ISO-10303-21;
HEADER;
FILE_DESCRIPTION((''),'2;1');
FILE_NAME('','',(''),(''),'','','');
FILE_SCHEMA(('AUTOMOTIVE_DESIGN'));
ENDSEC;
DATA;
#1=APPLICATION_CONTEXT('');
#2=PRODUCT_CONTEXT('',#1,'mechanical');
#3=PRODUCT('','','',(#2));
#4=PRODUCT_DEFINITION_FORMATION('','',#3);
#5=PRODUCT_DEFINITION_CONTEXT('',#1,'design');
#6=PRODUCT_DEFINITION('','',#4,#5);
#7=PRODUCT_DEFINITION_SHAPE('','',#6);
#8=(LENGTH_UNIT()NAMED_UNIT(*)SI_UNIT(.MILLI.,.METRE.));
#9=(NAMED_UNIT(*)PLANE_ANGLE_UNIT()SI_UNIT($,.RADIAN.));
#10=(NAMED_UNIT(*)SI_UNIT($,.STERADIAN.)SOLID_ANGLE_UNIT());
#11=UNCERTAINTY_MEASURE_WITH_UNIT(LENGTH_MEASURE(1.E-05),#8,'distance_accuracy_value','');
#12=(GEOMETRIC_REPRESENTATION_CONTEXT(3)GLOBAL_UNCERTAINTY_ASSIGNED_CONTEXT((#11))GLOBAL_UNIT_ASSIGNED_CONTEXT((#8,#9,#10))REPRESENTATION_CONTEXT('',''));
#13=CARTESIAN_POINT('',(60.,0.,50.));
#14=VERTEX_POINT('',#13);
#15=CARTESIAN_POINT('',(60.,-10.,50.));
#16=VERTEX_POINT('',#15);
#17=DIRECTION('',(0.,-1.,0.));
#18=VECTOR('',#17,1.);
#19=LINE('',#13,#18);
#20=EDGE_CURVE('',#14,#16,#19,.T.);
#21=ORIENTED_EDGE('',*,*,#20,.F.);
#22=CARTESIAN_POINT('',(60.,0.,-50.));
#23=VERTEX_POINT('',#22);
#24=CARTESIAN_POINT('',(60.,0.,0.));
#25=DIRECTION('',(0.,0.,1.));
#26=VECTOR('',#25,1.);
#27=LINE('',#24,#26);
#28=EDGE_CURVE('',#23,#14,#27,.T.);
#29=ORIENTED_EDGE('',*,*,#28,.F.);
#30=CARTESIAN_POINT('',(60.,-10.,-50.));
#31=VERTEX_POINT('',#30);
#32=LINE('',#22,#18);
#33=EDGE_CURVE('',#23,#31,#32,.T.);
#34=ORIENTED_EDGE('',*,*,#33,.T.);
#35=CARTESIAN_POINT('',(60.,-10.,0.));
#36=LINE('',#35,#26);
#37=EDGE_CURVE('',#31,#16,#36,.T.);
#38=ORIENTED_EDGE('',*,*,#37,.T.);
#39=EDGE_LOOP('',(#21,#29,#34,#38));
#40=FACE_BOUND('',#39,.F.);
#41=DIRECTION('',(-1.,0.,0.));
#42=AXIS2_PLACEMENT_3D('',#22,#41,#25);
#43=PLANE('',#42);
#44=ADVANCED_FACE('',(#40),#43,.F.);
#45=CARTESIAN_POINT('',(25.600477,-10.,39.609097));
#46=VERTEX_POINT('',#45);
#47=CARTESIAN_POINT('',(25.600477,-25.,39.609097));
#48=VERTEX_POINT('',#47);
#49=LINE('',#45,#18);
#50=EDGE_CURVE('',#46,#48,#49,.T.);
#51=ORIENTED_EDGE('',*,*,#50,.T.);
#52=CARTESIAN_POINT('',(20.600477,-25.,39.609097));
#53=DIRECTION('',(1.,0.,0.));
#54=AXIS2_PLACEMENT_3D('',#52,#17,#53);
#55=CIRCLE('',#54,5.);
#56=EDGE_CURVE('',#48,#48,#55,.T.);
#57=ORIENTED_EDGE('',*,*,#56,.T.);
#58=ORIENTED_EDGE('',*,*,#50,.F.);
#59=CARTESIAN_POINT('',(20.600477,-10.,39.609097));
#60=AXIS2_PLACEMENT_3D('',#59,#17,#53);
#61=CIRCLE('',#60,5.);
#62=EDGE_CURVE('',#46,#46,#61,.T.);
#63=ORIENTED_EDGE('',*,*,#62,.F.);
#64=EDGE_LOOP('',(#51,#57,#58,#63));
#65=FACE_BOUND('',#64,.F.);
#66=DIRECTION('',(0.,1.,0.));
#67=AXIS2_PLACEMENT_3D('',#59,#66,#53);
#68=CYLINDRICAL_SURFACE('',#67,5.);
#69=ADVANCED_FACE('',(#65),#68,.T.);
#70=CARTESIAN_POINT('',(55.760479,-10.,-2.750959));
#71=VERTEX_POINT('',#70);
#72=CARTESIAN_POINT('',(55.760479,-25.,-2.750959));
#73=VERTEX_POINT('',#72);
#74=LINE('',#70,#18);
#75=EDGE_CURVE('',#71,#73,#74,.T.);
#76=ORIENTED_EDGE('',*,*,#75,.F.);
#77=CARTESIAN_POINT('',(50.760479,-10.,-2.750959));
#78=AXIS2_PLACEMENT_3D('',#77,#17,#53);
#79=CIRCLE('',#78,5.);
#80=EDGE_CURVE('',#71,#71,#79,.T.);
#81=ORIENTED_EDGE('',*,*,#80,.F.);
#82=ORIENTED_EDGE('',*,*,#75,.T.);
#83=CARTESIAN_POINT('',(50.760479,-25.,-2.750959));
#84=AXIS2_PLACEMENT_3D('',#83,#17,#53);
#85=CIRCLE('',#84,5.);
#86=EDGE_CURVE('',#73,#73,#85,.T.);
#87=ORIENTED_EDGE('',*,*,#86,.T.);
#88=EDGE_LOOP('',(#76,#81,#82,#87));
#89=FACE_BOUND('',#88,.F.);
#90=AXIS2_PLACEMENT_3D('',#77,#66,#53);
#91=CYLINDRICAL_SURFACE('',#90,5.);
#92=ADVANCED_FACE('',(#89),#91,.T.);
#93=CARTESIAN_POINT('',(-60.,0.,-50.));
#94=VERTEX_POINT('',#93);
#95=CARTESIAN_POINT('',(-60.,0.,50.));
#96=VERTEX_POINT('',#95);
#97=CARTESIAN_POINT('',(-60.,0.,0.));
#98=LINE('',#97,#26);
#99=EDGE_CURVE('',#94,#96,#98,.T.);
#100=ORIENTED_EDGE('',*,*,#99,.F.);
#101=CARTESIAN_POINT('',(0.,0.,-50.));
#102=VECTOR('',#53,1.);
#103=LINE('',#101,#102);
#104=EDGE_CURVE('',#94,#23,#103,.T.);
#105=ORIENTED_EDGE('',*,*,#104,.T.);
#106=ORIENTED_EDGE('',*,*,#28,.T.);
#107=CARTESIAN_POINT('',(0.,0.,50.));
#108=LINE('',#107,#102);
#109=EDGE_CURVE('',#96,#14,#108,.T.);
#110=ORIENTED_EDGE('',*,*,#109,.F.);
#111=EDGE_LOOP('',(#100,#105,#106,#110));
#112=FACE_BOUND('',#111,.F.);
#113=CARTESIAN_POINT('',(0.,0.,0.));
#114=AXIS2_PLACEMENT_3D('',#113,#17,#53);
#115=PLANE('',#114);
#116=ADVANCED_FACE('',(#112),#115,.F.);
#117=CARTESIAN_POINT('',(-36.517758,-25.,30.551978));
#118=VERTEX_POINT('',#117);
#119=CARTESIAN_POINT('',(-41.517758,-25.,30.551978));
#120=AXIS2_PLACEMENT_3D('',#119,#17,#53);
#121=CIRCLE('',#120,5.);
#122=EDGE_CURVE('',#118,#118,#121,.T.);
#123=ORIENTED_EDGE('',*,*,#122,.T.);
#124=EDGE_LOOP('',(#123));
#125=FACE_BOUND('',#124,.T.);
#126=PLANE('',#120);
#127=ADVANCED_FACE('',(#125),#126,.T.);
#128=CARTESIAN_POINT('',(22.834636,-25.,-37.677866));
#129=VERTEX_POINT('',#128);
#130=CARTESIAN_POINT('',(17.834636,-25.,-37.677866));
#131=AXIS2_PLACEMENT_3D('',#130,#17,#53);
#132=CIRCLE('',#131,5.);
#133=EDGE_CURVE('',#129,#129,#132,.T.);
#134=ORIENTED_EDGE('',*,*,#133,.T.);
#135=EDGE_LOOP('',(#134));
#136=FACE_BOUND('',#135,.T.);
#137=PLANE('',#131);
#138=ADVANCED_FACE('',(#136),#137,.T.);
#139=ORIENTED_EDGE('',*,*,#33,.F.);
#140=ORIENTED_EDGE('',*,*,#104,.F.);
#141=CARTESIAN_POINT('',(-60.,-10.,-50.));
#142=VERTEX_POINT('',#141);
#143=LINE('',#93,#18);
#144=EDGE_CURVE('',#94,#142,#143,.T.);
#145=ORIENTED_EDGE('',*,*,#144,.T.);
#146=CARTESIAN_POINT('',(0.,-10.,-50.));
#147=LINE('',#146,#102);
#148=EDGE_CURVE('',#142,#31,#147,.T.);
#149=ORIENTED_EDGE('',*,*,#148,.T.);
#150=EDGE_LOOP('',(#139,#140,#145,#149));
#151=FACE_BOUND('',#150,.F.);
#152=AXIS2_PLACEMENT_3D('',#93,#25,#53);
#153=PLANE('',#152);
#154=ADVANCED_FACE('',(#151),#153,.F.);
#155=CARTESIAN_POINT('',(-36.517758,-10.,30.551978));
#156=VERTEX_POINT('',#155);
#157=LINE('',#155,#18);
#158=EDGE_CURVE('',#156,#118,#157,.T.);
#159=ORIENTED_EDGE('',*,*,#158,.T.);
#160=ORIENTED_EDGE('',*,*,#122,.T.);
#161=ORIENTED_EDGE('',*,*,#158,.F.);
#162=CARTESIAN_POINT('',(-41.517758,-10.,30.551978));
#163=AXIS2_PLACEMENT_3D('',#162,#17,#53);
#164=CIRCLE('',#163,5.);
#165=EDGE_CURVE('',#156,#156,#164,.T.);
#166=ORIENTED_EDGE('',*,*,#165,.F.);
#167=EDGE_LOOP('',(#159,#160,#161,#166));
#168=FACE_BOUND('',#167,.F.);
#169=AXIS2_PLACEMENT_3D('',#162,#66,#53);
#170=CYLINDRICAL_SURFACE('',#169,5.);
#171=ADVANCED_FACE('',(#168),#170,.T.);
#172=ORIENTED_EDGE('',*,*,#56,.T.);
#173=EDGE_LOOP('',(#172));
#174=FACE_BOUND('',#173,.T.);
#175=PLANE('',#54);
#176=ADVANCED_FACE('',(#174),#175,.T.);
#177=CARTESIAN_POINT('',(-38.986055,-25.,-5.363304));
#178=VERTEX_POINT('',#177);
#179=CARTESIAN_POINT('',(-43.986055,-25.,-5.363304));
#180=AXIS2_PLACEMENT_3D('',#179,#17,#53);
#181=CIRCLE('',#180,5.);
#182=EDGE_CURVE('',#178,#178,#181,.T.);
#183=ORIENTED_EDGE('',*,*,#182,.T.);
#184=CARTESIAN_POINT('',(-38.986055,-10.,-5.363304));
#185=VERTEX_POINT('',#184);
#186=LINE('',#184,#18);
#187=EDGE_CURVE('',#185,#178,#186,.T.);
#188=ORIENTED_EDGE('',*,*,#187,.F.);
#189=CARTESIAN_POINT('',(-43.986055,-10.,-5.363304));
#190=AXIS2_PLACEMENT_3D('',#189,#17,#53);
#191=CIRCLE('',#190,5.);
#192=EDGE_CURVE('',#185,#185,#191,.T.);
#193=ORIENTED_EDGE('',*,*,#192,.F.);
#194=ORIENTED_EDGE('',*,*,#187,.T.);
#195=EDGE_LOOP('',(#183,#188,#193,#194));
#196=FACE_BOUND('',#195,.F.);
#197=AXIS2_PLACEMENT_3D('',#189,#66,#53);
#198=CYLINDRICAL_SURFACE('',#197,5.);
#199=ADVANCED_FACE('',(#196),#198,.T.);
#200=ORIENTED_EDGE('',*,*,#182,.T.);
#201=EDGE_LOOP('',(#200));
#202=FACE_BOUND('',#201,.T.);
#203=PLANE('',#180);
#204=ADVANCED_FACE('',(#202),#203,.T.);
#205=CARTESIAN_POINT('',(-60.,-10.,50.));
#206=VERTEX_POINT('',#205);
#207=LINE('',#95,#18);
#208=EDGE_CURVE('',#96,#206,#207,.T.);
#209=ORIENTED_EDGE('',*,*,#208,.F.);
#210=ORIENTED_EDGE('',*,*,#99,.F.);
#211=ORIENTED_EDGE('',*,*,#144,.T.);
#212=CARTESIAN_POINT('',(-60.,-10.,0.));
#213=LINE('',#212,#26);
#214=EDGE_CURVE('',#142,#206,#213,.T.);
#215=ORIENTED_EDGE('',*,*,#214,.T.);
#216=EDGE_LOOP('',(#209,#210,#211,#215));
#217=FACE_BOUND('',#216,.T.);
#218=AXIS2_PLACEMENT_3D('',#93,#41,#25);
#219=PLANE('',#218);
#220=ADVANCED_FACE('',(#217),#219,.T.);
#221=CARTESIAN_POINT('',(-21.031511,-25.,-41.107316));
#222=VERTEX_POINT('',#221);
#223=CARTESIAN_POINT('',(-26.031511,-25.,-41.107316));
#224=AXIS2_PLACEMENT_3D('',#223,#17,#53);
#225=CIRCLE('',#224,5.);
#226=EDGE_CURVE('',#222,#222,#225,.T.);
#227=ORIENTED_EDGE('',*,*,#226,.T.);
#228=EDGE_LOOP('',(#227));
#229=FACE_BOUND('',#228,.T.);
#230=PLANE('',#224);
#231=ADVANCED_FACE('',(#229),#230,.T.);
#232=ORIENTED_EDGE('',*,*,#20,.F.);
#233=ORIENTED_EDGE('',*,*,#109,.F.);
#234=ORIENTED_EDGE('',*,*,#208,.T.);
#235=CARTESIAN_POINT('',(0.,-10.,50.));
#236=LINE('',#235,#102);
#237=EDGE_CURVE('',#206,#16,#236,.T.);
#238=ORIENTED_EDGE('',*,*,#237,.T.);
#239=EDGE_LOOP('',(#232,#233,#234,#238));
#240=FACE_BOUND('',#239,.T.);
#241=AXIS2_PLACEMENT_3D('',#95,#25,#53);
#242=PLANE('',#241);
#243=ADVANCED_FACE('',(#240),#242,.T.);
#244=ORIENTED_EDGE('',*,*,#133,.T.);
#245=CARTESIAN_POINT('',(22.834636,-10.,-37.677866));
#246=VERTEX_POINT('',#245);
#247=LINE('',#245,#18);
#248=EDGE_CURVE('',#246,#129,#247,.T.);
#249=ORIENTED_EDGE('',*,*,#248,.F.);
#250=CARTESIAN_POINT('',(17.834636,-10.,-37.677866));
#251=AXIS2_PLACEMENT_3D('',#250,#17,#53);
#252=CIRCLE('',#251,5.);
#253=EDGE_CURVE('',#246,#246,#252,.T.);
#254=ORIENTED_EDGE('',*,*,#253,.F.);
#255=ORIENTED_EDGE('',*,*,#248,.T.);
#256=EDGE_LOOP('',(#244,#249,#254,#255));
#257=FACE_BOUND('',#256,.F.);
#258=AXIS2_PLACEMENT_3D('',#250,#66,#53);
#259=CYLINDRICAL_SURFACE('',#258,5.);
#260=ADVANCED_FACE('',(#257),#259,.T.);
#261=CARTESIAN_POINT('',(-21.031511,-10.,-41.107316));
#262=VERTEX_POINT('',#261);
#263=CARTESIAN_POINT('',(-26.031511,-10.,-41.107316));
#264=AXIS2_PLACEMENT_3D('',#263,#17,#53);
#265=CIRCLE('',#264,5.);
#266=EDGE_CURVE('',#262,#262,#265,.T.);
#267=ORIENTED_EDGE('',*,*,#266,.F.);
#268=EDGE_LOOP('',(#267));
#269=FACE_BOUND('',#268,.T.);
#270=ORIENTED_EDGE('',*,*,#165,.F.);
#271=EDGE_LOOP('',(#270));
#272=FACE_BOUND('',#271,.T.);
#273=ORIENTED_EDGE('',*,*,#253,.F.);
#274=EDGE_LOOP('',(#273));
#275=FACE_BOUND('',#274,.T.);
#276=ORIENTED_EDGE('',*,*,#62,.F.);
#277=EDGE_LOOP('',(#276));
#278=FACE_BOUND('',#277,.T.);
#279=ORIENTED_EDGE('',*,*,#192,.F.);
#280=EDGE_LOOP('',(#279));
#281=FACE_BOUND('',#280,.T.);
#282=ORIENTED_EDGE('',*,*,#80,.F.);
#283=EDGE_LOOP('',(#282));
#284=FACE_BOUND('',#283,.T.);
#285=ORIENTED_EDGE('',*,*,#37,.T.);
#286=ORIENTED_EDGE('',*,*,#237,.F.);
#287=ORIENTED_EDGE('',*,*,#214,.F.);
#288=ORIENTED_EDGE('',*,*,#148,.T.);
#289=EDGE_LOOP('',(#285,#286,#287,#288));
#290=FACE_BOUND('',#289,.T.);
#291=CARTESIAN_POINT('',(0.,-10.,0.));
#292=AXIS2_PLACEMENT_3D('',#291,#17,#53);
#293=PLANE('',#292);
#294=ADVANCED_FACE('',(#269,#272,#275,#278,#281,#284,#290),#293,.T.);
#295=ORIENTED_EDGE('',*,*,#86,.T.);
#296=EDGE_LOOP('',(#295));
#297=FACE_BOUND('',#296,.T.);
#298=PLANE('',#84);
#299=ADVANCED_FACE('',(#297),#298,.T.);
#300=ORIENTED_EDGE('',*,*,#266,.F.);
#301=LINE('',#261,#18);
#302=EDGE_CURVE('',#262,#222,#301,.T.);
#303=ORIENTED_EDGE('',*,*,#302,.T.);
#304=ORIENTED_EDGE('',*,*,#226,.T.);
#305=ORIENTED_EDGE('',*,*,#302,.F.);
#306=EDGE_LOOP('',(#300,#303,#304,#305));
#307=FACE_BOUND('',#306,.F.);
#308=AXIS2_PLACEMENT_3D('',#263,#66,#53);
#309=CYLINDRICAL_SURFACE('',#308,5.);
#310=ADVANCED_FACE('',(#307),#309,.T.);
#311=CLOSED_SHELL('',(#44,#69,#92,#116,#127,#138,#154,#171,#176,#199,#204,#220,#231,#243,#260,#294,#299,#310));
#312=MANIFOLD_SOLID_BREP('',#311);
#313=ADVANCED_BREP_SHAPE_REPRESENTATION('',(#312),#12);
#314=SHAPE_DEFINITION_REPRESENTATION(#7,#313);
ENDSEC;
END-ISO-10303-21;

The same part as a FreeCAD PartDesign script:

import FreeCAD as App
import Part
import Sketcher

V = App.Vector


def add_polygon(sketch, points):
    """Adds a closed chain of lines whose ends are joined by coincident constraints."""
    first, n = sketch.GeometryCount, len(points)
    for a, b in zip(points, points[1:] + points[:1]):
        sketch.addGeometry(Part.LineSegment(App.Vector(*a, 0), App.Vector(*b, 0)), False)
    for i in range(n):
        sketch.addConstraint(Sketcher.Constraint("Coincident", first + i, 2, first + (i + 1) % n, 1))

doc = App.newDocument("Part")
params = doc.addObject("Spreadsheet::Sheet", "Params")
for row, (alias, value) in enumerate([
    ("sketch1_width", "120 mm"),
    ("sketch1_height", "100 mm"),
    ("pad1_length", "10 mm"),
    ("sketch2_diameter", "10 mm"),
    ("pad2_length", "15 mm"),
], start=1):
    params.set(f"A{row}", alias)
    params.set(f"B{row}", "=" + value)
    params.setAlias(f"B{row}", alias)

body = doc.addObject("PartDesign::Body", "Body")

# Sketch on XZ plane
sketch1 = body.newObject("Sketcher::SketchObject", "Sketch")
sketch1.AttachmentSupport = (doc.getObject("XZ_Plane"), [""])
sketch1.MapMode = "FlatFace"
add_polygon(sketch1, [(-60, 50), (-60, -50), (60, -50), (60, 50)])  # lines 0-3
sketch1.addConstraint([
    Sketcher.Constraint("Vertical", 0),
    Sketcher.Constraint("Horizontal", 1),
    Sketcher.Constraint("Vertical", 2),
    Sketcher.Constraint("Horizontal", 3),
    Sketcher.Constraint("Symmetric", 0, 2, 2, 2, -1, 1),
    Sketcher.Constraint("DistanceX", 1, 1, 1, 2, 120.0),
    Sketcher.Constraint("DistanceY", 0, 2, 0, 1, 100.0),
])
sketch1.setExpression("Constraints[9]", "Params.sketch1_width")
sketch1.setExpression("Constraints[10]", "Params.sketch1_height")
pad1 = body.newObject("PartDesign::Pad", "Pad")
pad1.Profile = sketch1
pad1.setExpression("Length", "Params.pad1_length")

# Sketch on XZ plane
sketch2 = body.newObject("Sketcher::SketchObject", "Sketch001")
sketch2.AttachmentSupport = (doc.getObject("XZ_Plane"), [""])
sketch2.MapMode = "FlatFace"
sketch2.AttachmentOffset = App.Placement(V(0, 0, 10), App.Rotation())
sketch2.addGeometry([
    Part.Circle(V(-42, 31, 0), V(0, 0, 1), 5),  # 0
    Part.Circle(V(-44, -5, 0), V(0, 0, 1), 5),  # 1
    Part.Circle(V(-26, -41, 0), V(0, 0, 1), 5),  # 2
    Part.Circle(V(18, -38, 0), V(0, 0, 1), 5),  # 3
    Part.Circle(V(51, -3, 0), V(0, 0, 1), 5),  # 4
    Part.Circle(V(21, 40, 0), V(0, 0, 1), 5),  # 5
], False)
sketch2.addConstraint([
    Sketcher.Constraint("Equal", 0, 1),
    Sketcher.Constraint("Equal", 1, 2),
    Sketcher.Constraint("Equal", 2, 3),
    Sketcher.Constraint("Equal", 3, 4),
    Sketcher.Constraint("Equal", 4, 5),
    Sketcher.Constraint("Diameter", 0, 10.0),
    Sketcher.Constraint("DistanceX", 5, 3, 4, 3, 30.160002),
    Sketcher.Constraint("DistanceY", 1, 3, 5, 3, 44.972401),
    Sketcher.Constraint("DistanceX", 2, 3, -1, 1, 26.031511),
    Sketcher.Constraint("DistanceX", -1, 1, 4, 3, 50.760479),
    Sketcher.Constraint("DistanceY", 4, 3, -1, 1, 2.750959),
    Sketcher.Constraint("DistanceY", 1, 3, 0, 3, 35.915282),
    Sketcher.Constraint("DistanceY", 2, 3, 1, 3, 35.744012),
    Sketcher.Constraint("DistanceY", 2, 3, 3, 3, 3.42945),
    Sketcher.Constraint("DistanceX", 1, 3, 3, 3, 61.820691),
    Sketcher.Constraint("DistanceX", 3, 3, 5, 3, 2.765841),
    Sketcher.Constraint("DistanceX", 0, 3, -1, 1, 41.517758),
    Sketcher.Constraint("DistanceY", -1, 1, 0, 3, 30.551978),
])
sketch2.setExpression("Constraints[5]", "Params.sketch2_diameter")
pad2 = body.newObject("PartDesign::Pad", "Pad001")
pad2.Profile = sketch2
pad2.setExpression("Length", "Params.pad2_length")

doc.recompute()
